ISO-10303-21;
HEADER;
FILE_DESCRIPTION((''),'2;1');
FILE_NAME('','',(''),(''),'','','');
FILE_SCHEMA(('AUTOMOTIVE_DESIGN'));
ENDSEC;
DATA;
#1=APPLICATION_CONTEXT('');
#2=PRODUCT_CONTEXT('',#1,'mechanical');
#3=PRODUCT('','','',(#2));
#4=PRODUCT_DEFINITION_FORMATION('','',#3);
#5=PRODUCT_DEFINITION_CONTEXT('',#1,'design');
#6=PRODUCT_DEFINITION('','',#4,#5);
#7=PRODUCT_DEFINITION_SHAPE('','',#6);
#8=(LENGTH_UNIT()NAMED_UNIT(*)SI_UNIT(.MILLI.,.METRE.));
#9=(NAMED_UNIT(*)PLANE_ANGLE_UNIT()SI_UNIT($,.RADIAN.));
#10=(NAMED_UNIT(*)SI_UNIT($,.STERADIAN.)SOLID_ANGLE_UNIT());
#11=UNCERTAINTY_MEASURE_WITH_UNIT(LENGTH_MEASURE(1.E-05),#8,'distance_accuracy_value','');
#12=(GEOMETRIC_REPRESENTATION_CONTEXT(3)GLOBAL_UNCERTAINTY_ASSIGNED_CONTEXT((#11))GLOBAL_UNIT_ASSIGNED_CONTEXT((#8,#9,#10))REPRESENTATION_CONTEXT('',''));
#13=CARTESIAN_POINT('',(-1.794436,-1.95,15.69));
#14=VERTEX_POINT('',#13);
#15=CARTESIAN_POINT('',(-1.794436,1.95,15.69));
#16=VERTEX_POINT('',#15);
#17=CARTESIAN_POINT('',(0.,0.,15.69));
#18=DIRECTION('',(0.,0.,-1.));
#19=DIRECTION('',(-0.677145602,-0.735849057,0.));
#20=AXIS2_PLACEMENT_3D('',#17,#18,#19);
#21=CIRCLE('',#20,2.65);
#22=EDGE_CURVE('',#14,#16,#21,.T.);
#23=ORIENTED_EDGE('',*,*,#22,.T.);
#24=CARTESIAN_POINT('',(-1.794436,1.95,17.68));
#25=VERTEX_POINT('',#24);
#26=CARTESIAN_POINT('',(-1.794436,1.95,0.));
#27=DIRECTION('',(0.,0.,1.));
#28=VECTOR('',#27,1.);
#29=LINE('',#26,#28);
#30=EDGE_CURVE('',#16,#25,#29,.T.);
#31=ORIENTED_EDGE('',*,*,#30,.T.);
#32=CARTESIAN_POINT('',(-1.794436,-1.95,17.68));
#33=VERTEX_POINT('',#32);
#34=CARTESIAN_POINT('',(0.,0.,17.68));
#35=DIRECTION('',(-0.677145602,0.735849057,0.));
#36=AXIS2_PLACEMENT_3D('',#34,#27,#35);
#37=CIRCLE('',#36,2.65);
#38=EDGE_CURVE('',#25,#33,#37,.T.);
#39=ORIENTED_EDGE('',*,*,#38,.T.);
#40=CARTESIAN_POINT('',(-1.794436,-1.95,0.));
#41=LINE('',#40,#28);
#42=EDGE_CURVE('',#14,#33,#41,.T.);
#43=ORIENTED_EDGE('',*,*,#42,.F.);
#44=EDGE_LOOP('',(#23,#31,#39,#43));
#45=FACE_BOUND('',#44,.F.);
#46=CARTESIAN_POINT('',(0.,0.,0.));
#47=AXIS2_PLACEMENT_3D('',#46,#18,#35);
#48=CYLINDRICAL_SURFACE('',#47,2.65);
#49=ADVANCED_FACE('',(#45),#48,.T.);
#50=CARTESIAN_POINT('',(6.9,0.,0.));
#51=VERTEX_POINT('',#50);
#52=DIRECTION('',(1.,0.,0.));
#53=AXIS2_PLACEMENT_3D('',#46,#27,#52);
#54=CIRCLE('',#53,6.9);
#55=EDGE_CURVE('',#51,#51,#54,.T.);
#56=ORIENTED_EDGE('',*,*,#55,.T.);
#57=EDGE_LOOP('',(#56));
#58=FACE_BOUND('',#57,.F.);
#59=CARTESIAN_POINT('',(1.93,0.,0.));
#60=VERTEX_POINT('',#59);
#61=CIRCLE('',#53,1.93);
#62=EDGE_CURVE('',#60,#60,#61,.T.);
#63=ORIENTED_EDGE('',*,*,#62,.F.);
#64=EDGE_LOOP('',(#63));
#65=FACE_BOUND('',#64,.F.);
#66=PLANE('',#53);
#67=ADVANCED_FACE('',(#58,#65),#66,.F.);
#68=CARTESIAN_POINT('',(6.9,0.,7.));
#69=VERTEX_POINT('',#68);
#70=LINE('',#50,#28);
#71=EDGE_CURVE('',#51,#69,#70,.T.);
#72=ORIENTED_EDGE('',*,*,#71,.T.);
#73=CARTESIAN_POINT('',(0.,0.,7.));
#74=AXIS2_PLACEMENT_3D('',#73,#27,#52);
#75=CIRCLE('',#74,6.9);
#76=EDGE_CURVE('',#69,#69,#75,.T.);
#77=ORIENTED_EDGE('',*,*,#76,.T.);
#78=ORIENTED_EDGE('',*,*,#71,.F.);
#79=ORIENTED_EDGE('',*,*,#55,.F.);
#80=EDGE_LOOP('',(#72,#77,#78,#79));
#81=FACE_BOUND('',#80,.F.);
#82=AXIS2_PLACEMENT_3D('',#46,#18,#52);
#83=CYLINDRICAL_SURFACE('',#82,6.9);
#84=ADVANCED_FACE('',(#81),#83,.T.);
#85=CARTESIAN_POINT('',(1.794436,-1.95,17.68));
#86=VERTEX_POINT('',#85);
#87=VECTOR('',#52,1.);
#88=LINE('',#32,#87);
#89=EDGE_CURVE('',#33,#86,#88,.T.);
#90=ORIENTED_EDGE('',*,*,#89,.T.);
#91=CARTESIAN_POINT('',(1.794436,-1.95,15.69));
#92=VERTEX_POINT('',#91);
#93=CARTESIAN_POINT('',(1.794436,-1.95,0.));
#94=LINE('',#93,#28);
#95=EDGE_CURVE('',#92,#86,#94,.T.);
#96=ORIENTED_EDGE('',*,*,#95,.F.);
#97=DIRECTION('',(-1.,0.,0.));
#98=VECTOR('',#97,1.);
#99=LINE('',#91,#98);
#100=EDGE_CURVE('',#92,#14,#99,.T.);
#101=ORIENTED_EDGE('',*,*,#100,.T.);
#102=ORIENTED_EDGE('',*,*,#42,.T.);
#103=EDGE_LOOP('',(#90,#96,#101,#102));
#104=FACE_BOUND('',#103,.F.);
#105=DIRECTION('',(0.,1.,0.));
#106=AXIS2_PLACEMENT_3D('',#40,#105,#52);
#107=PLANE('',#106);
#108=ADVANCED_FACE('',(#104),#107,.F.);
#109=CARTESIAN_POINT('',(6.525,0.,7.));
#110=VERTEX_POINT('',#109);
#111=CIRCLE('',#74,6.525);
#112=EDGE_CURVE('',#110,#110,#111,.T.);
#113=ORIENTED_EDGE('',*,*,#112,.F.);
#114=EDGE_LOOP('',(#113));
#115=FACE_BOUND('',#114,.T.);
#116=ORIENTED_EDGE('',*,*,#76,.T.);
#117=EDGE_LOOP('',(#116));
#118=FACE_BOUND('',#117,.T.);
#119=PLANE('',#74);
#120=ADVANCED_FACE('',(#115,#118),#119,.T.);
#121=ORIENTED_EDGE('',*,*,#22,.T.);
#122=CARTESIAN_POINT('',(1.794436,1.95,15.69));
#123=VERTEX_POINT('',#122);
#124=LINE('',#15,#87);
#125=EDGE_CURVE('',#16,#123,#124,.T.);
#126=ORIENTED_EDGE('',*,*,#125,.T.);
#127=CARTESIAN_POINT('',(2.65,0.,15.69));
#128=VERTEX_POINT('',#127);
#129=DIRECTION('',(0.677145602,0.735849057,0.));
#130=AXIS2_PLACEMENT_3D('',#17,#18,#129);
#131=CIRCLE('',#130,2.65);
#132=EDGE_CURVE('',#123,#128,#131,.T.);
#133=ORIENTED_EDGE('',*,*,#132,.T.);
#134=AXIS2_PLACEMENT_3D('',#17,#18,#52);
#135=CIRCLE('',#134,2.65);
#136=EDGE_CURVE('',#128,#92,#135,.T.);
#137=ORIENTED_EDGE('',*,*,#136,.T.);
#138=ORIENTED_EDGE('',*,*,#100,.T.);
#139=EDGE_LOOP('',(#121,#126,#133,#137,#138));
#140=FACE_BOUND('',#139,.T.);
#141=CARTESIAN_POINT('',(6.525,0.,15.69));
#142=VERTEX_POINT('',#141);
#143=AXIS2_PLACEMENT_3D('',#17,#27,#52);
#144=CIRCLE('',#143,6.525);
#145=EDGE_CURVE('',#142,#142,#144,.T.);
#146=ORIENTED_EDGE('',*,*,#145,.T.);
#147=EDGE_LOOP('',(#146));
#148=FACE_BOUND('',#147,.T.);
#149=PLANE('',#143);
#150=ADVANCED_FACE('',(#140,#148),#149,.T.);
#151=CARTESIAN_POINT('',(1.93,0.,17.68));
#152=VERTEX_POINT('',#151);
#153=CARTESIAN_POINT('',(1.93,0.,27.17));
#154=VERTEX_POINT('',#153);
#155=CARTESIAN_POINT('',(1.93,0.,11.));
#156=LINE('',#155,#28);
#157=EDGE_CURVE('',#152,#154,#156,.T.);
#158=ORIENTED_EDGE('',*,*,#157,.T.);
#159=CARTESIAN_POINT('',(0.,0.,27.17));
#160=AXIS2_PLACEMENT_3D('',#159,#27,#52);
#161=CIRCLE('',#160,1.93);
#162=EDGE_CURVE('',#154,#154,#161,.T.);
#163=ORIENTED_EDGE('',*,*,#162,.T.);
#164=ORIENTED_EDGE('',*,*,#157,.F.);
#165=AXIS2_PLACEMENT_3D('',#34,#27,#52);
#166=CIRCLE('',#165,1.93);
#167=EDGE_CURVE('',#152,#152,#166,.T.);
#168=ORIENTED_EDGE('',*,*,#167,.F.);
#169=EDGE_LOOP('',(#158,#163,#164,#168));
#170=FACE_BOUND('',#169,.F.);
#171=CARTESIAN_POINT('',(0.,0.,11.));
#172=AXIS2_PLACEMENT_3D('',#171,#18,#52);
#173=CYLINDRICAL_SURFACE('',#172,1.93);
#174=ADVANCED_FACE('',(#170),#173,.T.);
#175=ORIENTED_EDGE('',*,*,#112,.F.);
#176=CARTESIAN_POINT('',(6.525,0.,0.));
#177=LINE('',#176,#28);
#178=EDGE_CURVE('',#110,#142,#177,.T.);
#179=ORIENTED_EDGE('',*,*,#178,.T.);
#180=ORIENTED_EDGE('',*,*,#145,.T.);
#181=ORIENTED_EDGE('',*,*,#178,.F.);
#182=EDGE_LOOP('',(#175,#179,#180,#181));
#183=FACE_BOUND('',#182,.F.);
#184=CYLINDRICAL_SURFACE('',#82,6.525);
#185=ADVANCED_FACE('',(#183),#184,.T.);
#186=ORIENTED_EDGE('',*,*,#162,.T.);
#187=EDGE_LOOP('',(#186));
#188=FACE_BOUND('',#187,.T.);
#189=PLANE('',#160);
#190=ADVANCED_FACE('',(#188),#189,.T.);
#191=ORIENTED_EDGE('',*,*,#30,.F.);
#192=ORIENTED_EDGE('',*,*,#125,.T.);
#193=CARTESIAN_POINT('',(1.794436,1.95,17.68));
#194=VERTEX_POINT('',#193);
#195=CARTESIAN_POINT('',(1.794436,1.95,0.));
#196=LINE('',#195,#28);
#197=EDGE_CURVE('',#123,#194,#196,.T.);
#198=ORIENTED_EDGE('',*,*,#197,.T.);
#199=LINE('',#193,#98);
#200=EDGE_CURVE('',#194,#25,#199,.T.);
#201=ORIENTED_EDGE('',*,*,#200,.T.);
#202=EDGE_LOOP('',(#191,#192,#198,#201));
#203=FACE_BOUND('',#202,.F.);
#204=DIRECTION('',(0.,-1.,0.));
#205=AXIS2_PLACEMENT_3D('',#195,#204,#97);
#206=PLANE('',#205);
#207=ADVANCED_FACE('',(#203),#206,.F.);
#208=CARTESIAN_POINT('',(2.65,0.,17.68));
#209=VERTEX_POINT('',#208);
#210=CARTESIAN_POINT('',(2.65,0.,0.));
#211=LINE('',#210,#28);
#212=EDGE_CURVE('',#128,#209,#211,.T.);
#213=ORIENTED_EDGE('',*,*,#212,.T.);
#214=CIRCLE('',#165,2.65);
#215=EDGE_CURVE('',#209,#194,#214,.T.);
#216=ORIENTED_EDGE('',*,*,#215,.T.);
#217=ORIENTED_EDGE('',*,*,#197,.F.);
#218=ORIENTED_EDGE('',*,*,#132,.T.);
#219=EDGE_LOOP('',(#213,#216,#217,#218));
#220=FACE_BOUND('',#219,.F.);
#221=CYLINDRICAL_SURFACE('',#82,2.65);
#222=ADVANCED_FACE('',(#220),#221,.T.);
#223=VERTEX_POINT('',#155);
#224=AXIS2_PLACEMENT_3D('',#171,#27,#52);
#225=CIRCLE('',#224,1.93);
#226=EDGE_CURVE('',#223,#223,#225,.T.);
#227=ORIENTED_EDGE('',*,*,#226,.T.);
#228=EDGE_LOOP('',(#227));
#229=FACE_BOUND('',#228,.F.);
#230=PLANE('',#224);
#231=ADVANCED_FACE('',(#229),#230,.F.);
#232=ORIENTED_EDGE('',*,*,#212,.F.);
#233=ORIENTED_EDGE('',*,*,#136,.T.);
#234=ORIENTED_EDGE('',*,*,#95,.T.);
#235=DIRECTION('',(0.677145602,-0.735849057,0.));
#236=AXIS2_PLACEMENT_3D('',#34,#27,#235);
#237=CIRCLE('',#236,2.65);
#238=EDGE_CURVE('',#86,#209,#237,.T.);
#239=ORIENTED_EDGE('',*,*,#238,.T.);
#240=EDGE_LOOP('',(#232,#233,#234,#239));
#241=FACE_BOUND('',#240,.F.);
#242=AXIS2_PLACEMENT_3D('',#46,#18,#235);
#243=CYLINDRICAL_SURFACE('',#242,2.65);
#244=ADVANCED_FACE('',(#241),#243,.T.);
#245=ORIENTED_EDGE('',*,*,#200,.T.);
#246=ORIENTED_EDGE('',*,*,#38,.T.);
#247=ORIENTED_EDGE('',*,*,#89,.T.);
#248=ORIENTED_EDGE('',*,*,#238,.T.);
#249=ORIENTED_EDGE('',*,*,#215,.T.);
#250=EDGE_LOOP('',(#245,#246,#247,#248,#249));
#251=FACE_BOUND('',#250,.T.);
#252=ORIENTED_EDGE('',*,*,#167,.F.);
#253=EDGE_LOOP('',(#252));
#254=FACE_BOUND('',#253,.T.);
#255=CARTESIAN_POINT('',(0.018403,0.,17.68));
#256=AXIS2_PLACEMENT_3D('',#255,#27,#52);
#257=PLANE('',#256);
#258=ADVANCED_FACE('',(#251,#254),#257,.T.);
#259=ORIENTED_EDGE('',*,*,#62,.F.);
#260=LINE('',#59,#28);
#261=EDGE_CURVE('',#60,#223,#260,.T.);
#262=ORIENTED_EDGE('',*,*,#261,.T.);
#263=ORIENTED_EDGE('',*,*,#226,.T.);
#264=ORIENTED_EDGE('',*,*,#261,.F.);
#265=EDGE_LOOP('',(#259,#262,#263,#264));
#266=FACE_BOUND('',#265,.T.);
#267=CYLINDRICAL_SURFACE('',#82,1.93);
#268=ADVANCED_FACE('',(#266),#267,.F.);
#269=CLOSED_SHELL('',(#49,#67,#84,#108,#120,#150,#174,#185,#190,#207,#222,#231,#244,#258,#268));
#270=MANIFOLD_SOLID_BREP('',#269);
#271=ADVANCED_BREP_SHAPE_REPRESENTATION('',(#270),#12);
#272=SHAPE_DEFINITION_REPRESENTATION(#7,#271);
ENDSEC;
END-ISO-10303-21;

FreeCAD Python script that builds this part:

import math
import FreeCAD as App
import Part
import Sketcher

V = App.Vector

doc = App.newDocument("Part")
body = doc.addObject("PartDesign::Body", "Body")

sketch1 = doc.addObject("Sketcher::SketchObject", "Sketch")
body.addObject(sketch1)
sketch1.AttachmentSupport = (doc.XY_Plane, [""])
sketch1.MapMode = "FlatFace"
sketch1.AttachmentOffset = App.Placement(V(0, 0, 11), App.Rotation())
sketch1.addGeometry(Part.Circle(V(0, 0, 0), V(0, 0, 1), 1.93), False)
sketch1.addConstraint(Sketcher.Constraint("Coincident", 0, 3, -1, 1))
sketch1.addConstraint(Sketcher.Constraint("Diameter", 0, 3.86))
pad1 = doc.addObject("PartDesign::Pad", "Pad")
body.addObject(pad1)
pad1.Profile = sketch1
pad1.Length = 16.17

sketch2 = doc.addObject("Sketcher::SketchObject", "Sketch001")
body.addObject(sketch2)
sketch2.AttachmentSupport = (doc.XY_Plane, [""])
sketch2.MapMode = "FlatFace"
sketch2.addGeometry(Part.ArcOfCircle(Part.Circle(V(0, 0, 0), V(0, 0, 1), 2.65), math.radians(-47.379009), math.radians(0)), False)
sketch2.addGeometry(Part.ArcOfCircle(Part.Circle(V(0, 0, 0), V(0, 0, 1), 2.65), math.radians(0), math.radians(47.379009)), False)
sketch2.addGeometry(Part.LineSegment(V(1.794436, 1.95, 0), V(-1.794436, 1.95, 0)), False)
sketch2.addGeometry(Part.ArcOfCircle(Part.Circle(V(0, 0, 0), V(0, 0, 1), 2.65), math.radians(132.620991), math.radians(227.379009)), False)
sketch2.addGeometry(Part.LineSegment(V(-1.794436, -1.95, 0), V(1.794436, -1.95, 0)), False)
sketch2.addGeometry(Part.Circle(V(0, 0, 0), V(0, 0, 1), 1.93), False)
sketch2.addConstraint(Sketcher.Constraint("Tangent", 0, 2, 1, 1))
sketch2.addConstraint(Sketcher.Constraint("Coincident", 1, 2, 2, 1))
sketch2.addConstraint(Sketcher.Constraint("Coincident", 2, 2, 3, 1))
sketch2.addConstraint(Sketcher.Constraint("Coincident", 3, 2, 4, 1))
sketch2.addConstraint(Sketcher.Constraint("Coincident", 4, 2, 0, 1))
sketch2.addConstraint(Sketcher.Constraint("Horizontal", 2))
sketch2.addConstraint(Sketcher.Constraint("Horizontal", 4))
sketch2.addConstraint(Sketcher.Constraint("Coincident", 0, 3, -1, 1))
sketch2.addConstraint(Sketcher.Constraint("Coincident", 3, 3, -1, 1))
sketch2.addConstraint(Sketcher.Constraint("Coincident", 5, 3, -1, 1))
sketch2.addConstraint(Sketcher.Constraint("Equal", 0, 1))
sketch2.addConstraint(Sketcher.Constraint("Equal", 1, 3))
sketch2.addConstraint(Sketcher.Constraint("PointOnObject", 0, 2, -1))
sketch2.addConstraint(Sketcher.Constraint("Vertical", 2, 2, 3, 2))
sketch2.addConstraint(Sketcher.Constraint("Diameter", 5, 3.86))
sketch2.addConstraint(Sketcher.Constraint("Radius", 0, 2.65))
sketch2.addConstraint(Sketcher.Constraint("DistanceY", 3, 2, 2, 2, 3.9))
pad2 = doc.addObject("PartDesign::Pad", "Pad001")
body.addObject(pad2)
pad2.Profile = sketch2
pad2.Length = 17.68

sketch3 = doc.addObject("Sketcher::SketchObject", "Sketch002")
body.addObject(sketch3)
sketch3.AttachmentSupport = (doc.XY_Plane, [""])
sketch3.MapMode = "FlatFace"
sketch3.addGeometry(Part.Circle(V(0, 0, 0), V(0, 0, 1), 6.525), False)
sketch3.addGeometry(Part.ArcOfCircle(Part.Circle(V(0, 0, 0), V(0, 0, 1), 2.65), math.radians(0), math.radians(47.379009)), False)
sketch3.addGeometry(Part.ArcOfCircle(Part.Circle(V(0, 0, 0), V(0, 0, 1), 2.65), math.radians(-47.379009), math.radians(0)), False)
sketch3.addGeometry(Part.LineSegment(V(1.794436, -1.95, 0), V(-1.794436, -1.95, 0)), False)
sketch3.addGeometry(Part.ArcOfCircle(Part.Circle(V(0, 0, 0), V(0, 0, 1), 2.65), math.radians(132.620991), math.radians(227.379009)), False)
sketch3.addGeometry(Part.LineSegment(V(-1.794436, 1.95, 0), V(1.794436, 1.95, 0)), False)
sketch3.addConstraint(Sketcher.Constraint("Tangent", 1, 1, 2, 2))
sketch3.addConstraint(Sketcher.Constraint("Coincident", 2, 1, 3, 1))
sketch3.addConstraint(Sketcher.Constraint("Coincident", 3, 2, 4, 2))
sketch3.addConstraint(Sketcher.Constraint("Coincident", 4, 1, 5, 1))
sketch3.addConstraint(Sketcher.Constraint("Coincident", 5, 2, 1, 2))
sketch3.addConstraint(Sketcher.Constraint("Horizontal", 3))
sketch3.addConstraint(Sketcher.Constraint("Horizontal", 5))
sketch3.addConstraint(Sketcher.Constraint("Coincident", 0, 3, -1, 1))
sketch3.addConstraint(Sketcher.Constraint("Coincident", 1, 3, -1, 1))
sketch3.addConstraint(Sketcher.Constraint("Coincident", 4, 3, -1, 1))
sketch3.addConstraint(Sketcher.Constraint("Equal", 1, 2))
sketch3.addConstraint(Sketcher.Constraint("Equal", 2, 4))
sketch3.addConstraint(Sketcher.Constraint("PointOnObject", 1, 1, -1))
sketch3.addConstraint(Sketcher.Constraint("Vertical", 3, 2, 4, 1))
sketch3.addConstraint(Sketcher.Constraint("Diameter", 0, 13.05))
sketch3.addConstraint(Sketcher.Constraint("Radius", 1, 2.65))
sketch3.addConstraint(Sketcher.Constraint("DistanceY", 3, 2, 4, 1, 3.9))
pad3 = doc.addObject("PartDesign::Pad", "Pad002")
body.addObject(pad3)
pad3.Profile = sketch3
pad3.Length = 15.69

sketch4 = doc.addObject("Sketcher::SketchObject", "Sketch003")
body.addObject(sketch4)
sketch4.AttachmentSupport = (doc.XY_Plane, [""])
sketch4.MapMode = "FlatFace"
sketch4.addGeometry(Part.Circle(V(0, 0, 0), V(0, 0, 1), 6.9), False)
sketch4.addGeometry(Part.Circle(V(0, 0, 0), V(0, 0, 1), 6.525), False)
sketch4.addConstraint(Sketcher.Constraint("Coincident", 0, 3, -1, 1))
sketch4.addConstraint(Sketcher.Constraint("Coincident", 1, 3, -1, 1))
sketch4.addConstraint(Sketcher.Constraint("Diameter", 0, 13.8))
sketch4.addConstraint(Sketcher.Constraint("Diameter", 1, 13.05))
pad4 = doc.addObject("PartDesign::Pad", "Pad003")
body.addObject(pad4)
pad4.Profile = sketch4
pad4.Length = 7

doc.recompute()
